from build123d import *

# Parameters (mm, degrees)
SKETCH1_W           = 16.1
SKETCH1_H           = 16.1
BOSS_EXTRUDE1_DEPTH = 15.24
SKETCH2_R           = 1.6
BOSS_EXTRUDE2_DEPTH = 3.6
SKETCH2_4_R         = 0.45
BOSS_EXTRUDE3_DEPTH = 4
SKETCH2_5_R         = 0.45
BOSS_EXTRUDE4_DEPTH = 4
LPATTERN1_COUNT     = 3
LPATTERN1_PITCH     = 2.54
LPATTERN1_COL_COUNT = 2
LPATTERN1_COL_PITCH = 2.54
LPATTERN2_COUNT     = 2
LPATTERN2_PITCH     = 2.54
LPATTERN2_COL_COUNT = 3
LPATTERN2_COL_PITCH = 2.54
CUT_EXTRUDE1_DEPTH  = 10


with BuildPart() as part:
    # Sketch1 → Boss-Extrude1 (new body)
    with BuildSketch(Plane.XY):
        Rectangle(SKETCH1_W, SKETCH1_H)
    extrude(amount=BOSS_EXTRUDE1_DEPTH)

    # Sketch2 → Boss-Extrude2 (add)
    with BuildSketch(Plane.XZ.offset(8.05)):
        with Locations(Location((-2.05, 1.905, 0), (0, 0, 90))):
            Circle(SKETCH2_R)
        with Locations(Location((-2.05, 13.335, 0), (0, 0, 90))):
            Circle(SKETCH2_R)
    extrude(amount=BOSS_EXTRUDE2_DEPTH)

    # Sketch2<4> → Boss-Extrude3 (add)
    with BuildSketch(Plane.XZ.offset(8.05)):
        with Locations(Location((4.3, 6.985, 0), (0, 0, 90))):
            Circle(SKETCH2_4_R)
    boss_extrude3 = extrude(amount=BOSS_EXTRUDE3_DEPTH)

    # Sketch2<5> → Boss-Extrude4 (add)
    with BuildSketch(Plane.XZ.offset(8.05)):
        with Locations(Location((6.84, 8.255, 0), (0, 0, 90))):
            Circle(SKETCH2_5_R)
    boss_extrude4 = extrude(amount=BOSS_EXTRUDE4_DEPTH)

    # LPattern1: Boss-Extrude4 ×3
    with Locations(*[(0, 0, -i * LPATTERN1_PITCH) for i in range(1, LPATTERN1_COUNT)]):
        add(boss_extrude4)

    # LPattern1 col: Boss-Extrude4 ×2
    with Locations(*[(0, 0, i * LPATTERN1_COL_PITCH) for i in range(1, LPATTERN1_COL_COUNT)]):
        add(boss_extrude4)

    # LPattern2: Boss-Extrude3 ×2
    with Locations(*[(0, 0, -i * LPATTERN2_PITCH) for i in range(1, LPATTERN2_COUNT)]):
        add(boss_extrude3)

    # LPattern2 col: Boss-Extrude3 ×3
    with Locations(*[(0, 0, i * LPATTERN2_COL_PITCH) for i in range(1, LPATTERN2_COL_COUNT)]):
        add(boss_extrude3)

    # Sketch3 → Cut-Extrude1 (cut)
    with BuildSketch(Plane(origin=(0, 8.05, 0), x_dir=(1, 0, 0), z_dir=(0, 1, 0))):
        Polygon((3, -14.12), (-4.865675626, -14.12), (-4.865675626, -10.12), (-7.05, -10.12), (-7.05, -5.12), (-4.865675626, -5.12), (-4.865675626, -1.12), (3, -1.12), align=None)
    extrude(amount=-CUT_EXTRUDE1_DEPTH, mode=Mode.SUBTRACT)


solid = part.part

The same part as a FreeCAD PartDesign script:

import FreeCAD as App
import Part
import Sketcher


def add_polygon(sketch, points):
    """Adds a closed chain of lines whose ends are joined by coincident constraints."""
    first, n = sketch.GeometryCount, len(points)
    for a, b in zip(points, points[1:] + points[:1]):
        sketch.addGeometry(Part.LineSegment(App.Vector(*a, 0), App.Vector(*b, 0)), False)
    for i in range(n):
        sketch.addConstraint(Sketcher.Constraint("Coincident", first + i, 2, first + (i + 1) % n, 1))

doc = App.newDocument("Part")
body = doc.addObject("PartDesign::Body", "Body")

# Sketch on XY plane
sketch1 = doc.addObject("Sketcher::SketchObject", "Sketch")
body.addObject(sketch1)
sketch1.AttachmentSupport = (doc.XY_Plane, [""])
sketch1.MapMode = "FlatFace"
add_polygon(sketch1, [(-8.05, 8.05), (-8.05, -8.05), (8.05, -8.05), (8.05, 8.05)])  # lines 0-3
sketch1.addConstraint(Sketcher.Constraint("Vertical", 0))
sketch1.addConstraint(Sketcher.Constraint("Horizontal", 1))
sketch1.addConstraint(Sketcher.Constraint("Vertical", 2))
sketch1.addConstraint(Sketcher.Constraint("Horizontal", 3))
sketch1.addConstraint(Sketcher.Constraint("Symmetric", 0, 2, 2, 2, -1, 1))
sketch1.addConstraint(Sketcher.Constraint("Equal", 3, 0))
sketch1.addConstraint(Sketcher.Constraint("DistanceX", 1, 1, 1, 2, 16.1))
pad1 = doc.addObject("PartDesign::Pad", "Pad")
body.addObject(pad1)
pad1.Profile = sketch1
pad1.Length = 15.24

# Sketch on XZ plane
sketch2 = doc.addObject("Sketcher::SketchObject", "Sketch001")
body.addObject(sketch2)
sketch2.AttachmentSupport = (doc.XZ_Plane, [""])
sketch2.MapMode = "FlatFace"
sketch2.AttachmentOffset = App.Placement(App.Vector(0, 0, 8.05), App.Rotation())
sketch2.addGeometry(Part.Circle(App.Vector(-2.05, 1.905, 0), App.Vector(0, 0, 1), 1.6), False)
sketch2.addGeometry(Part.Circle(App.Vector(-2.05, 13.335, 0), App.Vector(0, 0, 1), 1.6), False)
sketch2.addConstraint(Sketcher.Constraint("Equal", 0, 1))
sketch2.addConstraint(Sketcher.Constraint("Vertical", 0, 3, 1, 3))
sketch2.addConstraint(Sketcher.Constraint("Diameter", 0, 3.2))
sketch2.addConstraint(Sketcher.Constraint("DistanceX", 0, 3, -1, 1, 2.05))
sketch2.addConstraint(Sketcher.Constraint("DistanceY", 0, 3, 1, 3, 11.43))
sketch2.addConstraint(Sketcher.Constraint("DistanceY", -1, 1, 0, 3, 1.905))
pad2 = doc.addObject("PartDesign::Pad", "Pad001")
body.addObject(pad2)
pad2.Profile = sketch2
pad2.Length = 3.6

# Sketch on XZ plane
sketch3 = doc.addObject("Sketcher::SketchObject", "Sketch002")
body.addObject(sketch3)
sketch3.AttachmentSupport = (doc.XZ_Plane, [""])
sketch3.MapMode = "FlatFace"
sketch3.AttachmentOffset = App.Placement(App.Vector(0, 0, 8.05), App.Rotation())
sketch3.addGeometry(Part.Circle(App.Vector(4.3, 6.985, 0), App.Vector(0, 0, 1), 0.45), False)
sketch3.addConstraint(Sketcher.Constraint("Diameter", 0, 0.9))
sketch3.addConstraint(Sketcher.Constraint("DistanceX", -1, 1, 0, 3, 4.3))
sketch3.addConstraint(Sketcher.Constraint("DistanceY", -1, 1, 0, 3, 6.985))
pad3 = doc.addObject("PartDesign::Pad", "Pad002")
body.addObject(pad3)
pad3.Profile = sketch3
pad3.Length = 4

# Sketch on XZ plane
sketch4 = doc.addObject("Sketcher::SketchObject", "Sketch003")
body.addObject(sketch4)
sketch4.AttachmentSupport = (doc.XZ_Plane, [""])
sketch4.MapMode = "FlatFace"
sketch4.AttachmentOffset = App.Placement(App.Vector(0, 0, 8.05), App.Rotation())
sketch4.addGeometry(Part.Circle(App.Vector(6.84, 8.255, 0), App.Vector(0, 0, 1), 0.45), False)
sketch4.addConstraint(Sketcher.Constraint("Diameter", 0, 0.9))
sketch4.addConstraint(Sketcher.Constraint("DistanceX", -1, 1, 0, 3, 6.84))
sketch4.addConstraint(Sketcher.Constraint("DistanceY", -1, 1, 0, 3, 8.255))
pad4 = doc.addObject("PartDesign::Pad", "Pad003")
body.addObject(pad4)
pad4.Profile = sketch4
pad4.Length = 4
doc.recompute()

linearpattern = doc.addObject("PartDesign::LinearPattern", "LinearPattern")
body.addObject(linearpattern)
linearpattern.Originals = [pad4]
linearpattern.Direction = (doc.Z_Axis, [""])
linearpattern.Mode = "offset"
linearpattern.Offset = 2.54
linearpattern.Occurrences = 3
linearpattern.Reversed = True
body.Tip = linearpattern
doc.recompute()

linearpattern2 = doc.addObject("PartDesign::LinearPattern", "LinearPattern001")
body.addObject(linearpattern2)
linearpattern2.Originals = [pad4]
linearpattern2.Direction = (doc.Z_Axis, [""])
linearpattern2.Mode = "offset"
linearpattern2.Offset = 2.54
linearpattern2.Occurrences = 2
body.Tip = linearpattern2
doc.recompute()

linearpattern3 = doc.addObject("PartDesign::LinearPattern", "LinearPattern002")
body.addObject(linearpattern3)
linearpattern3.Originals = [pad3]
linearpattern3.Direction = (doc.Z_Axis, [""])
linearpattern3.Mode = "offset"
linearpattern3.Offset = 2.54
linearpattern3.Occurrences = 2
linearpattern3.Reversed = True
body.Tip = linearpattern3
doc.recompute()

linearpattern4 = doc.addObject("PartDesign::LinearPattern", "LinearPattern003")
body.addObject(linearpattern4)
linearpattern4.Originals = [pad3]
linearpattern4.Direction = (doc.Z_Axis, [""])
linearpattern4.Mode = "offset"
linearpattern4.Offset = 2.54
linearpattern4.Occurrences = 3
body.Tip = linearpattern4

# Sketch on XZ plane
sketch5 = doc.addObject("Sketcher::SketchObject", "Sketch004")
body.addObject(sketch5)
sketch5.AttachmentSupport = (doc.XZ_Plane, [""])
sketch5.MapMode = "FlatFace"
sketch5.AttachmentOffset = App.Placement(App.Vector(0, 0, -8.05), App.Rotation())
add_polygon(sketch5, [(-4.865676, 14.12), (3, 14.12), (3, 1.12), (-4.865676, 1.12), (-4.865676, 5.12), (-7.05, 5.12), (-7.05, 10.12), (-4.865676, 10.12)])  # lines 0-7
sketch5.addConstraint(Sketcher.Constraint("Horizontal", 0))
sketch5.addConstraint(Sketcher.Constraint("Vertical", 1))
sketch5.addConstraint(Sketcher.Constraint("Horizontal", 2))
sketch5.addConstraint(Sketcher.Constraint("Vertical", 3))
sketch5.addConstraint(Sketcher.Constraint("Horizontal", 4))
sketch5.addConstraint(Sketcher.Constraint("Vertical", 5))
sketch5.addConstraint(Sketcher.Constraint("Horizontal", 6))
sketch5.addConstraint(Sketcher.Constraint("Vertical", 7))
sketch5.addConstraint(Sketcher.Constraint("Vertical", 3, 2, 6, 2))
sketch5.addConstraint(Sketcher.Constraint("Equal", 3, 7))
sketch5.addConstraint(Sketcher.Constraint("DistanceY", 1, 2, 1, 1, 13.0))
sketch5.addConstraint(Sketcher.Constraint("DistanceY", 3, 1, 3, 2, 4.0))
sketch5.addConstraint(Sketcher.Constraint("DistanceX", -1, 1, 0, 2, 3.0))
sketch5.addConstraint(Sketcher.Constraint("DistanceY", -1, 1, 0, 2, 14.12))
sketch5.addConstraint(Sketcher.Constraint("DistanceX", 4, 2, -1, 1, 7.05))
sketch5.addConstraint(Sketcher.Constraint("DistanceX", 0, 1, 0, 2, 7.865676))
pocket1 = doc.addObject("PartDesign::Pocket", "Pocket")
body.addObject(pocket1)
pocket1.Profile = sketch5
pocket1.Length = 10
pocket1.Reversed = True

doc.recompute()
